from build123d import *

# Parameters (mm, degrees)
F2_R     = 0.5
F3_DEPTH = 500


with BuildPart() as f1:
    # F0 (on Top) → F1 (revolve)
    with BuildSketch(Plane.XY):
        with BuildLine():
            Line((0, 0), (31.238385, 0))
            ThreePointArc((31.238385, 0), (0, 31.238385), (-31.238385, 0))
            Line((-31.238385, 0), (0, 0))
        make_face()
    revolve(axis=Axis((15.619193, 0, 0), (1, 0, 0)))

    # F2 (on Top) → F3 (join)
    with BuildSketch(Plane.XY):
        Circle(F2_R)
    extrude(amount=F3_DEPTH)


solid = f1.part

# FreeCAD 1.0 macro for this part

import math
import FreeCAD as App
import Part
import Sketcher
Q = App.Units.Quantity

doc = App.newDocument("Part")
body = doc.addObject("PartDesign::Body", "Body")

# Sketch on XY plane
sketch1 = doc.addObject("Sketcher::SketchObject", "Sketch")
body.addObject(sketch1)
sketch1.AttachmentSupport = (doc.XY_Plane, [""])
sketch1.MapMode = "FlatFace"
sketch1.addGeometry([
    Part.ArcOfCircle(Part.Circle(App.Vector(0, 0, 0), App.Vector(0, 0, 1), 31.238385), math.radians(0), math.radians(180)),
    Part.LineSegment(App.Vector(-31.238385, 0, 0), App.Vector(31.238385, 0, 0)),
], False)
sketch1.addConstraint([
    Sketcher.Constraint("Coincident", 0, 1, 1, 2),
    Sketcher.Constraint("Coincident", 1, 1, 0, 2),
    Sketcher.Constraint("Horizontal", 1),
    Sketcher.Constraint("Coincident", 0, 3, -1, 1),
    Sketcher.Constraint("PointOnObject", 0, 1, -1),
    Sketcher.Constraint("Radius", 0, Q("31.238385 mm")),
])
revolution = doc.addObject("PartDesign::Revolution", "Revolution")
body.addObject(revolution)
revolution.Profile = sketch1
revolution.ReferenceAxis = (sketch1, ["H_Axis"])
revolution.Angle = 360

# Sketch on XY plane
sketch2 = doc.addObject("Sketcher::SketchObject", "Sketch001")
body.addObject(sketch2)
sketch2.AttachmentSupport = (doc.XY_Plane, [""])
sketch2.MapMode = "FlatFace"
sketch2.addGeometry(Part.Circle(App.Vector(0, 0, 0), App.Vector(0, 0, 1), 0.5), False)
sketch2.addConstraint([
    Sketcher.Constraint("Coincident", 0, 3, -1, 1),
    Sketcher.Constraint("Diameter", 0, Q("1 mm")),
])
pad1 = doc.addObject("PartDesign::Pad", "Pad")
body.addObject(pad1)
pad1.Profile = sketch2
pad1.Length = 500

doc.recompute()
